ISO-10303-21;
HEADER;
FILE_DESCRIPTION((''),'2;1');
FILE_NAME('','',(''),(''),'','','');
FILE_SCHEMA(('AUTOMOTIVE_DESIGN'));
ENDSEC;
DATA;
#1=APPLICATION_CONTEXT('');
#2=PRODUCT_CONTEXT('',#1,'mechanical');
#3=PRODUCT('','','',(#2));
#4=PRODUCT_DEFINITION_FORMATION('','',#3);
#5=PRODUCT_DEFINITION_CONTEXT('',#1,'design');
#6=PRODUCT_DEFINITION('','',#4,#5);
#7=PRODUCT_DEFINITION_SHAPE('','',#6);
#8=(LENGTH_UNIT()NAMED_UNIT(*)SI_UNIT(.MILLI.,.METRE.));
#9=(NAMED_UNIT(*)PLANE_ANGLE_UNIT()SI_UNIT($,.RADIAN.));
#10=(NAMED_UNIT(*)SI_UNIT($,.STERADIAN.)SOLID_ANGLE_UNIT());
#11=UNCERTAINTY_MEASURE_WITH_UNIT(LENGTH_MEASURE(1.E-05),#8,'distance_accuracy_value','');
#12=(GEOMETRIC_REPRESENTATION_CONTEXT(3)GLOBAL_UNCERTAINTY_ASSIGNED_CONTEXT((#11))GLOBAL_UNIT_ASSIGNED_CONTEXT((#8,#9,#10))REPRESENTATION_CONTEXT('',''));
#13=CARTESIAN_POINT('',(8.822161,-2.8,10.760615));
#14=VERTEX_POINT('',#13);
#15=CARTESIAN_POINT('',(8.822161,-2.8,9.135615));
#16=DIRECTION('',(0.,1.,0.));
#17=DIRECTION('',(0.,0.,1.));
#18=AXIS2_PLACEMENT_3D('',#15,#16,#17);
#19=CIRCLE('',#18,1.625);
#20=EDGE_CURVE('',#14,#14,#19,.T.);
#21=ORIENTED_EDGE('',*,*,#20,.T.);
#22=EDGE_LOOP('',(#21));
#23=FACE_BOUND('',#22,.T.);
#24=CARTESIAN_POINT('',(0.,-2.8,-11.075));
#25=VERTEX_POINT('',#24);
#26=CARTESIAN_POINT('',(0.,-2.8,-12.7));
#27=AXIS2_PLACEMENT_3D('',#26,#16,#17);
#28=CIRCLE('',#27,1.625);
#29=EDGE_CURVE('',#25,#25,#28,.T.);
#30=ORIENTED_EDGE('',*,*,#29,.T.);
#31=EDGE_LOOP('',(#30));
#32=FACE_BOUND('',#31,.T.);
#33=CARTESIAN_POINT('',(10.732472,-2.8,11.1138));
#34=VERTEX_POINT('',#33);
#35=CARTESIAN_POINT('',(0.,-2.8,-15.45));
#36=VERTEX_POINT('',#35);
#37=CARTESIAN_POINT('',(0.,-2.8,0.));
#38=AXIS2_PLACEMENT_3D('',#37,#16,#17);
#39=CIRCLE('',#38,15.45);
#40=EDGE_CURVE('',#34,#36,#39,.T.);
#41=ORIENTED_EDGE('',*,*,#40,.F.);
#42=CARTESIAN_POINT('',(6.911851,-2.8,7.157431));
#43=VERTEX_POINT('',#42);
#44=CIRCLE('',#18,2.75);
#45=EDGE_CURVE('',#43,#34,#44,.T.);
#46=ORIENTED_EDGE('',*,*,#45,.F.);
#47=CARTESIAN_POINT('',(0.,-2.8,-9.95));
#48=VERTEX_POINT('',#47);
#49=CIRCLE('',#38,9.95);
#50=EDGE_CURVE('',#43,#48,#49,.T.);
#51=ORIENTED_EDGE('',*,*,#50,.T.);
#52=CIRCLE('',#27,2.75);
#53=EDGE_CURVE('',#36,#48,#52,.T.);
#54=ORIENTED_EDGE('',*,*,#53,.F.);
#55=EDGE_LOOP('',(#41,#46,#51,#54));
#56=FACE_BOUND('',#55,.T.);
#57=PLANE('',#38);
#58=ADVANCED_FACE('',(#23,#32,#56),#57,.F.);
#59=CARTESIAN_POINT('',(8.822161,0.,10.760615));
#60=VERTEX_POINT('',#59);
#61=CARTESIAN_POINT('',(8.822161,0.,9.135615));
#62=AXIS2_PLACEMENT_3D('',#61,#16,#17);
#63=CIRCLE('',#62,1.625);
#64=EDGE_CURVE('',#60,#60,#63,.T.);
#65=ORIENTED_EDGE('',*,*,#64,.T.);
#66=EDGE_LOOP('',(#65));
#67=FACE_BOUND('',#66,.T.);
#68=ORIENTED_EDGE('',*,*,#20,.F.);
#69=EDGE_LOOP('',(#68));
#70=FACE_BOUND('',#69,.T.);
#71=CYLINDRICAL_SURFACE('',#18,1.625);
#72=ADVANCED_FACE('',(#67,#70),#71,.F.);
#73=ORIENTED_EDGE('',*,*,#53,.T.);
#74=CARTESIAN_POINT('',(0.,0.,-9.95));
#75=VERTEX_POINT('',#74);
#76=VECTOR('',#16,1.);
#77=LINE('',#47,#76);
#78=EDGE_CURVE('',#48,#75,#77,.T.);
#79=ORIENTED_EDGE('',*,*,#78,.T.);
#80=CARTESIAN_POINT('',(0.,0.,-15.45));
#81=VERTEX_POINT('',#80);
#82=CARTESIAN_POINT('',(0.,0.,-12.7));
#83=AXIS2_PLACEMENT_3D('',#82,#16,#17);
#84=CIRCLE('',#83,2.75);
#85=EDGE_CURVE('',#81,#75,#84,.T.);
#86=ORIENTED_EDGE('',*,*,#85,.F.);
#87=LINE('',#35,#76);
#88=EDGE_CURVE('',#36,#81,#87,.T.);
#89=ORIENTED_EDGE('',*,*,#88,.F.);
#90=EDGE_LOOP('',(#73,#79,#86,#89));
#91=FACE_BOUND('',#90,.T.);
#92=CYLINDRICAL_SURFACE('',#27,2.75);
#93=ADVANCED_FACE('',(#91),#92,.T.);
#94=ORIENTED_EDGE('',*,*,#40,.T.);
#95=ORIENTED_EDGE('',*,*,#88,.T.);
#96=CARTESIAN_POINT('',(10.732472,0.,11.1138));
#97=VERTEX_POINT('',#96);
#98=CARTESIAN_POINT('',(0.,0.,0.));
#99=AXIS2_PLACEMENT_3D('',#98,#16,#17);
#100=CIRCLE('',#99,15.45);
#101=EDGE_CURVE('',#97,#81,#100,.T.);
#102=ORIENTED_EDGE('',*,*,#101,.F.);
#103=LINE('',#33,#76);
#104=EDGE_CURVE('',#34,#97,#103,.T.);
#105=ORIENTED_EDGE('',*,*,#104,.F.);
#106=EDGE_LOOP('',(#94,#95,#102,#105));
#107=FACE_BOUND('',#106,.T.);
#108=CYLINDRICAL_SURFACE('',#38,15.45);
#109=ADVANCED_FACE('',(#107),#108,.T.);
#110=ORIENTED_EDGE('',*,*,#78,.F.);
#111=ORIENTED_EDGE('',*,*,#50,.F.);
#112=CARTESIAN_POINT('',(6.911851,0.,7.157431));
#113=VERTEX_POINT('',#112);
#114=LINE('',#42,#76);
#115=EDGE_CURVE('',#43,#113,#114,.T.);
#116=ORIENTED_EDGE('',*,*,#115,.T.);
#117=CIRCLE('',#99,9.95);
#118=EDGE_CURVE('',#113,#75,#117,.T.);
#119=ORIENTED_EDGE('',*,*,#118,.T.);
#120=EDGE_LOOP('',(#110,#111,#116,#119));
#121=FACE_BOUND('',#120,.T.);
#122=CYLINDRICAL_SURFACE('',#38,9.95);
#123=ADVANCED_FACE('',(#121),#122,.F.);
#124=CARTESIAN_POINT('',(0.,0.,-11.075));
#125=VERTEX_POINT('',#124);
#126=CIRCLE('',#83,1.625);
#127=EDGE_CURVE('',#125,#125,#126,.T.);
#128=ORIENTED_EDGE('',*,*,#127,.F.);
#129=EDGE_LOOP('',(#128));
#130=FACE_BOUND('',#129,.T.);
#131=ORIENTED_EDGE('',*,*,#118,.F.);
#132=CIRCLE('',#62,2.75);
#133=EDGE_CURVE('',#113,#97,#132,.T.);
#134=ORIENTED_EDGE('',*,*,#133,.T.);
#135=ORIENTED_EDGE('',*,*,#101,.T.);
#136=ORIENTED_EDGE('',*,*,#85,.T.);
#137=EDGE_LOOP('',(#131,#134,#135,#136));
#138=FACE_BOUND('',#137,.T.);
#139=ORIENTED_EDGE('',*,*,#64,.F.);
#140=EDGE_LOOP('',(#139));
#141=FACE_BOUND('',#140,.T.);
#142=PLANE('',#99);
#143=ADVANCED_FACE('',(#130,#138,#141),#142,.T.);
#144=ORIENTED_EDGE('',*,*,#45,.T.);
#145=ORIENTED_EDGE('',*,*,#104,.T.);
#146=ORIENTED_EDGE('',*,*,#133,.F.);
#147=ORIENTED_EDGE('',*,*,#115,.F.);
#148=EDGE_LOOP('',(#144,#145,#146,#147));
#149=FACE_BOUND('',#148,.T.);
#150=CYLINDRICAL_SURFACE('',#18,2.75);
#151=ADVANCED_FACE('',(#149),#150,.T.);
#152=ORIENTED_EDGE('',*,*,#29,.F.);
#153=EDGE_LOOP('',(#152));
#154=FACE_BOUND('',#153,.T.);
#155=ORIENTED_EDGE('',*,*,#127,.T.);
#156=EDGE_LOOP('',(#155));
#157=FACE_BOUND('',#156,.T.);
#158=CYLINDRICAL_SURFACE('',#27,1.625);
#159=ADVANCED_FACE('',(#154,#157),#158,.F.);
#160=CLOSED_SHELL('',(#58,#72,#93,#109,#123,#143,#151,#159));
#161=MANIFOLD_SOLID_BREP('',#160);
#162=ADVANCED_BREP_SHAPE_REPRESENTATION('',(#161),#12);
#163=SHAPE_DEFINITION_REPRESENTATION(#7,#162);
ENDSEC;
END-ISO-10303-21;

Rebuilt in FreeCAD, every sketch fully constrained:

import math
import FreeCAD as App
import Part
import Sketcher

V = App.Vector

doc = App.newDocument("Part")
params = doc.addObject("Spreadsheet::Sheet", "Params")
for row, (alias, value) in enumerate([
    ("sketch1_radius", "9.95 mm"),
    ("sketch1_radius2", "2.75 mm"),
    ("pad1_length", "2.8 mm"),
    ("sketch2_diameter", "3.25 mm"),
], start=1):
    params.set(f"A{row}", alias)
    params.set(f"B{row}", "=" + value)
    params.setAlias(f"B{row}", alias)

body = doc.addObject("PartDesign::Body", "Body")

sketch1 = body.newObject("Sketcher::SketchObject", "Sketch")
sketch1.AttachmentSupport = (doc.getObject("XZ_Plane"), [""])
sketch1.MapMode = "FlatFace"
sketch1.addGeometry([
    Part.ArcOfCircle(Part.Circle(V(0, 0, 0), V(0, 0, 1), 9.95), math.radians(-90), math.radians(0)),
    Part.ArcOfCircle(Part.Circle(V(0, 0, 0), V(0, 0, 1), 9.95), math.radians(0), math.radians(46)),
    Part.ArcOfCircle(Part.Circle(V(8.822161, 9.135615, 0), V(0, 0, 1), 2.75), math.radians(46), math.radians(226)),
    Part.ArcOfCircle(Part.Circle(V(0, 0, 0), V(0, 0, 1), 15.45), math.radians(0), math.radians(46)),
    Part.ArcOfCircle(Part.Circle(V(0, 0, 0), V(0, 0, 1), 15.45), math.radians(-90), math.radians(0)),
    Part.ArcOfCircle(Part.Circle(V(0, -12.7, 0), V(0, 0, 1), 2.75), math.radians(90), math.radians(270)),
], False)
sketch1.addConstraint([
    Sketcher.Constraint("Tangent", 0, 2, 1, 1),
    Sketcher.Constraint("Tangent", 1, 2, 2, 2),
    Sketcher.Constraint("Tangent", 2, 1, 3, 2),
    Sketcher.Constraint("Tangent", 3, 1, 4, 2),
    Sketcher.Constraint("Tangent", 4, 1, 5, 2),
    Sketcher.Constraint("Tangent", 5, 1, 0, 1),
    Sketcher.Constraint("Coincident", 0, 3, -1, 1),
    Sketcher.Constraint("Coincident", 3, 3, -1, 1),
    Sketcher.Constraint("Equal", 0, 1),
    Sketcher.Constraint("Equal", 3, 4),
    Sketcher.Constraint("PointOnObject", 5, 3, -2),
    Sketcher.Constraint("PointOnObject", 0, 2, -1),
    Sketcher.Constraint("PointOnObject", 3, 1, -1),
    Sketcher.Constraint("Radius", 0, 9.95),
    Sketcher.Constraint("Radius", 2, 2.75),
    Sketcher.Constraint("DistanceY", -1, 1, 2, 1, 11.1138),
])
sketch1.setExpression("Constraints[13]", "Params.sketch1_radius")
sketch1.setExpression("Constraints[14]", "Params.sketch1_radius2")
pad1 = body.newObject("PartDesign::Pad", "Pad")
pad1.Profile = sketch1
pad1.setExpression("Length", "Params.pad1_length")

sketch2 = body.newObject("Sketcher::SketchObject", "Sketch001")
sketch2.AttachmentSupport = (doc.getObject("XZ_Plane"), [""])
sketch2.MapMode = "FlatFace"
sketch2.addGeometry([
    Part.Circle(V(0, -12.7, 0), V(0, 0, 1), 1.625),
    Part.Circle(V(8.822161, 9.135615, 0), V(0, 0, 1), 1.625),
], False)
sketch2.addConstraint([
    Sketcher.Constraint("Equal", 0, 1),
    Sketcher.Constraint("PointOnObject", 0, 3, -2),
    Sketcher.Constraint("Diameter", 0, 3.25),
    Sketcher.Constraint("DistanceY", 0, 3, -1, 1, 12.7),
    Sketcher.Constraint("DistanceX", -1, 1, 1, 3, 8.822161),
    Sketcher.Constraint("DistanceY", -1, 1, 1, 3, 9.135615),
])
sketch2.setExpression("Constraints[2]", "Params.sketch2_diameter")
pocket1 = body.newObject("PartDesign::Pocket", "Pocket")
pocket1.Profile = sketch2
pocket1.Type = "ThroughAll"
pocket1.Reversed = True

doc.recompute()
